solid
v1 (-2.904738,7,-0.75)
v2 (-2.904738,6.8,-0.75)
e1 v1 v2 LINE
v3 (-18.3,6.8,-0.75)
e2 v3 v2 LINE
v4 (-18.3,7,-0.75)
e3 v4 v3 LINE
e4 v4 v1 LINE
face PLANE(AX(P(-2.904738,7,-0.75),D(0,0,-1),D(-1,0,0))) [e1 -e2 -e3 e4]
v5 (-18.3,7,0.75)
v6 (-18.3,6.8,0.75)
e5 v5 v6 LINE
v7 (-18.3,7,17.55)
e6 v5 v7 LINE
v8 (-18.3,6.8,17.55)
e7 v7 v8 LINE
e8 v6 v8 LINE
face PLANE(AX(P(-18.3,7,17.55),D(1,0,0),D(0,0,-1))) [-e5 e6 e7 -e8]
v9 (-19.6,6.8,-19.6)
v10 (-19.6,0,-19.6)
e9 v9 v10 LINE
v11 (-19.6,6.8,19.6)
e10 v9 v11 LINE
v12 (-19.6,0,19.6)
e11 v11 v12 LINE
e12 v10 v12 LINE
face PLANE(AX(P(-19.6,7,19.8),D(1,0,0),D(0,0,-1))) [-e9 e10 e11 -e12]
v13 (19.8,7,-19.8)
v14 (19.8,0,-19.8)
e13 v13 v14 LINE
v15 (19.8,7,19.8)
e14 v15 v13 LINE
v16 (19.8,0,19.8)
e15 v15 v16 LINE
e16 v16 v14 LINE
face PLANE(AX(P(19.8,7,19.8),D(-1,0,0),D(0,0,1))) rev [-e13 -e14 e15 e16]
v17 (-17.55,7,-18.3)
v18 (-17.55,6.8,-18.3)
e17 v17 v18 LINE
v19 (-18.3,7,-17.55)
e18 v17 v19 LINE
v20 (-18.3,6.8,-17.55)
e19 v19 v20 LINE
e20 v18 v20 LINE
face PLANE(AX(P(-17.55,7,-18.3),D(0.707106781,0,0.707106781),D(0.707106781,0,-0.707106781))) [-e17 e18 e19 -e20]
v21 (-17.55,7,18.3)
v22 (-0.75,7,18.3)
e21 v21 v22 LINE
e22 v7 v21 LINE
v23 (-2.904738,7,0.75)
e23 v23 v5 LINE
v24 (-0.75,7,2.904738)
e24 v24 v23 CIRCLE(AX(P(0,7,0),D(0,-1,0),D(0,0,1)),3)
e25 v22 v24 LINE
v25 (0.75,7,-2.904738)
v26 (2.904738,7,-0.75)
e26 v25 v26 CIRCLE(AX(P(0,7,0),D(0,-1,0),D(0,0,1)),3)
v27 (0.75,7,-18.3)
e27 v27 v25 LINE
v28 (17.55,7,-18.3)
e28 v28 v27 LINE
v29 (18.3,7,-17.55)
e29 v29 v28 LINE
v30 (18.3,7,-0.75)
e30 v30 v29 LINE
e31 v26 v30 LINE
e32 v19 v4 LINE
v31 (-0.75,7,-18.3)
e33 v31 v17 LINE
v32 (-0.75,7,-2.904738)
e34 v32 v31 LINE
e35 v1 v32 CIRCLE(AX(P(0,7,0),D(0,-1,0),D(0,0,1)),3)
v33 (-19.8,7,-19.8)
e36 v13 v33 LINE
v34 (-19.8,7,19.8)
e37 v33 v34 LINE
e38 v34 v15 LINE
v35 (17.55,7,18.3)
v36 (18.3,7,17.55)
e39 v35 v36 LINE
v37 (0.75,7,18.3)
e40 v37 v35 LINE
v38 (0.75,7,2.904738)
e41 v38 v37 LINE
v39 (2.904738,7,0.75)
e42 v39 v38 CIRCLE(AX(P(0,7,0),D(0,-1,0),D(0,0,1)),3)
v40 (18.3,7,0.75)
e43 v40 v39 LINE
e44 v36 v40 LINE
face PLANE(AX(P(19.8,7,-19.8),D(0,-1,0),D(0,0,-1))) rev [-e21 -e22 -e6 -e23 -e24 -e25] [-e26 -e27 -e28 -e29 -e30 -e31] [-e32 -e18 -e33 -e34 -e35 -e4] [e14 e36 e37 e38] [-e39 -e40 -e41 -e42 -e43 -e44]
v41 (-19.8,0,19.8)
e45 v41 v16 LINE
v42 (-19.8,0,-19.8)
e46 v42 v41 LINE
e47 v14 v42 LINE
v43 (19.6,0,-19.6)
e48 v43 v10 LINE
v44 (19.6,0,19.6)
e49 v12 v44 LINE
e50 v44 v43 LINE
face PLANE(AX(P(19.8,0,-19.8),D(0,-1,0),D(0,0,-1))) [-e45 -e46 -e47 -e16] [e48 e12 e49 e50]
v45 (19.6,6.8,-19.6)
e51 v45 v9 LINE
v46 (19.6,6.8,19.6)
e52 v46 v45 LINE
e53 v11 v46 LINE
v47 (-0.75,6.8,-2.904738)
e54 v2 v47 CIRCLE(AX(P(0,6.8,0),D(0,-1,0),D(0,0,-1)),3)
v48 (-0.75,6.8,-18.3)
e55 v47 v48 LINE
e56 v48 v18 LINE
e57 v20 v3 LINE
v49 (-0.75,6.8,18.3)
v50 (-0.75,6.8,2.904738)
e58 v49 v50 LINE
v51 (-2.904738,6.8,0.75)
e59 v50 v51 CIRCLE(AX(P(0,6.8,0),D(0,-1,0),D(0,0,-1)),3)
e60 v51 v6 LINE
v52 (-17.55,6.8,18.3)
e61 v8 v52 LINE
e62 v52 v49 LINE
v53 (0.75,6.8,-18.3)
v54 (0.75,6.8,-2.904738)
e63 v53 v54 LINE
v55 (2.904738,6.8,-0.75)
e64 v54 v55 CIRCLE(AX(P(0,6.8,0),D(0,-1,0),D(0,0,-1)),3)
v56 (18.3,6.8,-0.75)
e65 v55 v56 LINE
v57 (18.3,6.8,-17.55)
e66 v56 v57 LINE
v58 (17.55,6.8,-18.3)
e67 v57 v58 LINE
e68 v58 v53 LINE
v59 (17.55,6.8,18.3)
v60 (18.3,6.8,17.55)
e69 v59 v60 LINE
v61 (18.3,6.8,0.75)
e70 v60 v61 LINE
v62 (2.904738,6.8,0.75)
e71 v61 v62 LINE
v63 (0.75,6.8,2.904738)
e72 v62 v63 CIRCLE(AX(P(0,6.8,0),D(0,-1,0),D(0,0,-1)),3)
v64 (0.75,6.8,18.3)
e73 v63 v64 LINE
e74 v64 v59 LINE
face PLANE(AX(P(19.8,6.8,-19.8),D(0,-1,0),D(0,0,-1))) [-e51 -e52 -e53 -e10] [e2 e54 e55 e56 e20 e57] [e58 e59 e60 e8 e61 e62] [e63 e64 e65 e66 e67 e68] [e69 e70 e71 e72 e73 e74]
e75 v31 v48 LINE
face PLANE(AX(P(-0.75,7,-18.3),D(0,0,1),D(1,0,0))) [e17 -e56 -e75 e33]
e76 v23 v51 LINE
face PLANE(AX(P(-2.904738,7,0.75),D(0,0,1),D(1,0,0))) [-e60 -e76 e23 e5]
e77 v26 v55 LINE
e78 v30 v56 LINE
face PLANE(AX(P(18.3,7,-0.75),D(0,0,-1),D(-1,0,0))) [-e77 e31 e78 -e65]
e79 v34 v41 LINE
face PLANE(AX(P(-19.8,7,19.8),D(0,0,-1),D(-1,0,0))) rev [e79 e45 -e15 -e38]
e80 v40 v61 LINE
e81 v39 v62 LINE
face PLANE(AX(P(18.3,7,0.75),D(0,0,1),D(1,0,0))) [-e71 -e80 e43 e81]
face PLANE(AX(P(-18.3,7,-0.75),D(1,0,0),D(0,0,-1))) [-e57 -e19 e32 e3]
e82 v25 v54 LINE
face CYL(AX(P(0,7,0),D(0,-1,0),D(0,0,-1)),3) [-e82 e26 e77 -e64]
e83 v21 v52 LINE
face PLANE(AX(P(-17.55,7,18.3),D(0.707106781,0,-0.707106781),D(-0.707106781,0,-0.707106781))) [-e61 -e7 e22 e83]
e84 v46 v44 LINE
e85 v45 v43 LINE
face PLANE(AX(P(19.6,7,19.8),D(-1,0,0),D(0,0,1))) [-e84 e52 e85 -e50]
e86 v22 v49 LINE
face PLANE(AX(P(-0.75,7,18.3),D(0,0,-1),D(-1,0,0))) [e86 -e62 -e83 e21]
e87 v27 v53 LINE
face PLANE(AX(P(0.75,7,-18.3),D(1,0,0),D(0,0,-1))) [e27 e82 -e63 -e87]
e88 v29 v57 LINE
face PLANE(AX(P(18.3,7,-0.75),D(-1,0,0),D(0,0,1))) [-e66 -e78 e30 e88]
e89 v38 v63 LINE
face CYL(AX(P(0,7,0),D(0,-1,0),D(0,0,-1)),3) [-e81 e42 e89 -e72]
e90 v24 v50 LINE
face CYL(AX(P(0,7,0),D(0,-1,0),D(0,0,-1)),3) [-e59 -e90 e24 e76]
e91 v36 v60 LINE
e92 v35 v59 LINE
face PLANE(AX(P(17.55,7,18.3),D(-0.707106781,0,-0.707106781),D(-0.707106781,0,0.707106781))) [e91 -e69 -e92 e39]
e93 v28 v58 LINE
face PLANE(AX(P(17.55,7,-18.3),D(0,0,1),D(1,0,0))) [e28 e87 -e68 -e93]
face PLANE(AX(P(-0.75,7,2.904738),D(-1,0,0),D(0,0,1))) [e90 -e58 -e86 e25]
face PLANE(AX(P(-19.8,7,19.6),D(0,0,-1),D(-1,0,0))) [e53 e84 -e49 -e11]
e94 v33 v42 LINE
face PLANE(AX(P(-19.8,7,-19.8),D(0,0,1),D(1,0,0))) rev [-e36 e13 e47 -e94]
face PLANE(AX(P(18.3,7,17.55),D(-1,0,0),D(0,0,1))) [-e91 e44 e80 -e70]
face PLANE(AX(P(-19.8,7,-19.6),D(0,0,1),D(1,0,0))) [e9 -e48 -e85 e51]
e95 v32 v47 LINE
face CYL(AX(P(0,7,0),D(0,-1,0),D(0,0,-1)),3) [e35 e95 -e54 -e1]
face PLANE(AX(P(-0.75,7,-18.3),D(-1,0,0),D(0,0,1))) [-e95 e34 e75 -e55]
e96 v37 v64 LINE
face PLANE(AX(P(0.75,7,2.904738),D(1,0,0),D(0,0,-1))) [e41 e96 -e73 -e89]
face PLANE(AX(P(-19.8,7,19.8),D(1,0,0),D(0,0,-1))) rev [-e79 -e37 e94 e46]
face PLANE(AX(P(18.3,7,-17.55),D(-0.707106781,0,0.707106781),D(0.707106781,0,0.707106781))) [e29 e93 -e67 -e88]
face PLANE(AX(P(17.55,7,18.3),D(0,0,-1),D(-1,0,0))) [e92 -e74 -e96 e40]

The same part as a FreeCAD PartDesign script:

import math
import FreeCAD as App
import Part
import Sketcher

V = App.Vector


def faces_at(feature, points):
    """Names of the faces that lie closest to the given points."""
    faces = feature.Shape.Faces
    near = lambda p: min(range(len(faces)), key=lambda i: faces[i].distToShape(Part.Vertex(*p))[0])
    return sorted({f"Face{near(p) + 1}" for p in points})


def add_polygon(sketch, points):
    """Adds a closed chain of lines whose ends are joined by coincident constraints."""
    first, n = sketch.GeometryCount, len(points)
    for a, b in zip(points, points[1:] + points[:1]):
        sketch.addGeometry(Part.LineSegment(App.Vector(*a, 0), App.Vector(*b, 0)), False)
    for i in range(n):
        sketch.addConstraint(Sketcher.Constraint("Coincident", first + i, 2, first + (i + 1) % n, 1))

doc = App.newDocument("Part")
body = doc.addObject("PartDesign::Body", "Body")

# Sketch on XZ plane
sketch1 = doc.addObject("Sketcher::SketchObject", "Sketch")
body.addObject(sketch1)
sketch1.AttachmentSupport = (doc.XZ_Plane, [""])
sketch1.MapMode = "FlatFace"
add_polygon(sketch1, [(-19.8, -19.8), (-19.8, 19.8), (19.8, 19.8), (19.8, -19.8)])  # lines 0-3
sketch1.addConstraint([
    Sketcher.Constraint("Vertical", 0),
    Sketcher.Constraint("Horizontal", 1),
    Sketcher.Constraint("Vertical", 2),
    Sketcher.Constraint("Horizontal", 3),
    Sketcher.Constraint("Symmetric", 0, 2, 2, 2, -1, 1),
    Sketcher.Constraint("Equal", 3, 0),
    Sketcher.Constraint("DistanceX", 1, 1, 1, 2, 39.6),
])
pad1 = doc.addObject("PartDesign::Pad", "Pad")
body.addObject(pad1)
pad1.Profile = sketch1
pad1.Length = 7
pad1.Reversed = True
doc.recompute()

thickness = doc.addObject("PartDesign::Thickness", "Thickness")
body.addObject(thickness)
thickness.Base = (pad1, faces_at(pad1, [(0, 0, 0)]))
thickness.Value = 0.2
thickness.Reversed = True
thickness.Join = "Intersection"

# Sketch on XZ plane
sketch2 = doc.addObject("Sketcher::SketchObject", "Sketch001")
body.addObject(sketch2)
sketch2.AttachmentSupport = (doc.XZ_Plane, [""])
sketch2.MapMode = "FlatFace"
sketch2.addGeometry([
    Part.LineSegment(V(0.75, 18.3, 0), V(17.55, 18.3, 0)),  # 0
    Part.LineSegment(V(17.55, 18.3, 0), V(18.3, 17.55, 0)),  # 1
    Part.LineSegment(V(18.3, 17.55, 0), V(18.3, 0.75, 0)),  # 2
    Part.LineSegment(V(18.3, 0.75, 0), V(2.904738, 0.75, 0)),  # 3
    Part.ArcOfCircle(Part.Circle(V(0, 0, 0), V(0, 0, 1), 3), math.radians(14.477512), math.radians(75.522488)),  # 4
    Part.LineSegment(V(0.75, 2.904738, 0), V(0.75, 18.3, 0)),  # 5
    Part.LineSegment(V(17.55, -18.3, 0), V(0.75, -18.3, 0)),  # 6
    Part.LineSegment(V(0.75, -18.3, 0), V(0.75, -2.904738, 0)),  # 7
    Part.ArcOfCircle(Part.Circle(V(0, 0, 0), V(0, 0, 1), 3), math.radians(-75.522488), math.radians(-14.477512)),  # 8
    Part.LineSegment(V(2.904738, -0.75, 0), V(18.3, -0.75, 0)),  # 9
    Part.LineSegment(V(18.3, -0.75, 0), V(18.3, -17.55, 0)),  # 10
    Part.LineSegment(V(18.3, -17.55, 0), V(17.55, -18.3, 0)),  # 11
    Part.LineSegment(V(-18.3, 0.75, 0), V(-18.3, 17.55, 0)),  # 12
    Part.LineSegment(V(-18.3, 17.55, 0), V(-17.55, 18.3, 0)),  # 13
    Part.LineSegment(V(-17.55, 18.3, 0), V(-0.75, 18.3, 0)),  # 14
    Part.LineSegment(V(-0.75, 18.3, 0), V(-0.75, 2.904738, 0)),  # 15
    Part.ArcOfCircle(Part.Circle(V(0, 0, 0), V(0, 0, 1), 3), math.radians(104.477512), math.radians(165.522488)),  # 16
    Part.LineSegment(V(-2.904738, 0.75, 0), V(-18.3, 0.75, 0)),  # 17
    Part.LineSegment(V(-0.75, -2.904738, 0), V(-0.75, -18.3, 0)),  # 18
    Part.LineSegment(V(-0.75, -18.3, 0), V(-17.55, -18.3, 0)),  # 19
    Part.LineSegment(V(-17.55, -18.3, 0), V(-18.3, -17.55, 0)),  # 20
    Part.LineSegment(V(-18.3, -17.55, 0), V(-18.3, -0.75, 0)),  # 21
    Part.LineSegment(V(-18.3, -0.75, 0), V(-2.904738, -0.75, 0)),  # 22
    Part.ArcOfCircle(Part.Circle(V(0, 0, 0), V(0, 0, 1), 3), math.radians(-165.522488), math.radians(-104.477512)),  # 23
], False)
sketch2.addConstraint([
    Sketcher.Constraint("Coincident", 0, 2, 1, 1),
    Sketcher.Constraint("Coincident", 1, 2, 2, 1),
    Sketcher.Constraint("Coincident", 2, 2, 3, 1),
    Sketcher.Constraint("Coincident", 3, 2, 4, 1),
    Sketcher.Constraint("Coincident", 4, 2, 5, 1),
    Sketcher.Constraint("Coincident", 5, 2, 0, 1),
    Sketcher.Constraint("Coincident", 6, 2, 7, 1),
    Sketcher.Constraint("Coincident", 7, 2, 8, 1),
    Sketcher.Constraint("Coincident", 8, 2, 9, 1),
    Sketcher.Constraint("Coincident", 9, 2, 10, 1),
    Sketcher.Constraint("Coincident", 10, 2, 11, 1),
    Sketcher.Constraint("Coincident", 11, 2, 6, 1),
    Sketcher.Constraint("Coincident", 12, 2, 13, 1),
    Sketcher.Constraint("Coincident", 13, 2, 14, 1),
    Sketcher.Constraint("Coincident", 14, 2, 15, 1),
    Sketcher.Constraint("Coincident", 15, 2, 16, 1),
    Sketcher.Constraint("Coincident", 16, 2, 17, 1),
    Sketcher.Constraint("Coincident", 17, 2, 12, 1),
    Sketcher.Constraint("Coincident", 18, 2, 19, 1),
    Sketcher.Constraint("Coincident", 19, 2, 20, 1),
    Sketcher.Constraint("Coincident", 20, 2, 21, 1),
    Sketcher.Constraint("Coincident", 21, 2, 22, 1),
    Sketcher.Constraint("Coincident", 22, 2, 23, 1),
    Sketcher.Constraint("Coincident", 23, 2, 18, 1),
    Sketcher.Constraint("Horizontal", 0),
    Sketcher.Constraint("Vertical", 2),
    Sketcher.Constraint("Horizontal", 3),
    Sketcher.Constraint("Vertical", 5),
    Sketcher.Constraint("Horizontal", 6),
    Sketcher.Constraint("Vertical", 7),
    Sketcher.Constraint("Horizontal", 9),
    Sketcher.Constraint("Vertical", 10),
    Sketcher.Constraint("Vertical", 12),
    Sketcher.Constraint("Horizontal", 14),
    Sketcher.Constraint("Vertical", 15),
    Sketcher.Constraint("Horizontal", 17),
    Sketcher.Constraint("Vertical", 18),
    Sketcher.Constraint("Horizontal", 19),
    Sketcher.Constraint("Vertical", 21),
    Sketcher.Constraint("Horizontal", 22),
    Sketcher.Constraint("Coincident", 4, 3, -1, 1),
    Sketcher.Constraint("Coincident", 8, 3, -1, 1),
    Sketcher.Constraint("Coincident", 16, 3, -1, 1),
    Sketcher.Constraint("Coincident", 23, 3, -1, 1),
    Sketcher.Constraint("Equal", 4, 8),
    Sketcher.Constraint("Equal", 8, 16),
    Sketcher.Constraint("Equal", 16, 23),
    Sketcher.Constraint("Symmetric", 10, 2, 12, 2, -1, 1),
    Sketcher.Constraint("Symmetric", 11, 2, 13, 2, -1, 1),
    Sketcher.Constraint("Symmetric", 5, 2, 18, 2, -1, 1),
    Sketcher.Constraint("Symmetric", 1, 2, 20, 2, -1, 1),
    Sketcher.Constraint("Symmetric", 1, 2, 12, 2, -2),
    Sketcher.Constraint("Symmetric", 0, 2, 13, 2, -2),
    Sketcher.Constraint("Perpendicular", 1, 11),
    Sketcher.Constraint("Perpendicular", 13, 20),
    Sketcher.Constraint("Horizontal", 4, 2, 15, 2),
    Sketcher.Constraint("Horizontal", 3, 2, 16, 2),
    Sketcher.Constraint("Horizontal", 9, 2, 21, 2),
    Sketcher.Constraint("Horizontal", 7, 2, 23, 2),
    Sketcher.Constraint("Vertical", 3, 2, 8, 2),
    Sketcher.Constraint("Equal", 19, 2),
    Sketcher.Constraint("Equal", 22, 5),
    Sketcher.Constraint("Radius", 4, 3.0),
    Sketcher.Constraint("DistanceX", 0, 1, 0, 2, 16.8),
    Sketcher.Constraint("DistanceY", -1, 1, 0, 2, 18.3),
    Sketcher.Constraint("DistanceY", 8, 2, 3, 2, 1.5),
])
pocket1 = doc.addObject("PartDesign::Pocket", "Pocket")
body.addObject(pocket1)
pocket1.Profile = sketch2
pocket1.Type = "ThroughAll"

doc.recompute()
